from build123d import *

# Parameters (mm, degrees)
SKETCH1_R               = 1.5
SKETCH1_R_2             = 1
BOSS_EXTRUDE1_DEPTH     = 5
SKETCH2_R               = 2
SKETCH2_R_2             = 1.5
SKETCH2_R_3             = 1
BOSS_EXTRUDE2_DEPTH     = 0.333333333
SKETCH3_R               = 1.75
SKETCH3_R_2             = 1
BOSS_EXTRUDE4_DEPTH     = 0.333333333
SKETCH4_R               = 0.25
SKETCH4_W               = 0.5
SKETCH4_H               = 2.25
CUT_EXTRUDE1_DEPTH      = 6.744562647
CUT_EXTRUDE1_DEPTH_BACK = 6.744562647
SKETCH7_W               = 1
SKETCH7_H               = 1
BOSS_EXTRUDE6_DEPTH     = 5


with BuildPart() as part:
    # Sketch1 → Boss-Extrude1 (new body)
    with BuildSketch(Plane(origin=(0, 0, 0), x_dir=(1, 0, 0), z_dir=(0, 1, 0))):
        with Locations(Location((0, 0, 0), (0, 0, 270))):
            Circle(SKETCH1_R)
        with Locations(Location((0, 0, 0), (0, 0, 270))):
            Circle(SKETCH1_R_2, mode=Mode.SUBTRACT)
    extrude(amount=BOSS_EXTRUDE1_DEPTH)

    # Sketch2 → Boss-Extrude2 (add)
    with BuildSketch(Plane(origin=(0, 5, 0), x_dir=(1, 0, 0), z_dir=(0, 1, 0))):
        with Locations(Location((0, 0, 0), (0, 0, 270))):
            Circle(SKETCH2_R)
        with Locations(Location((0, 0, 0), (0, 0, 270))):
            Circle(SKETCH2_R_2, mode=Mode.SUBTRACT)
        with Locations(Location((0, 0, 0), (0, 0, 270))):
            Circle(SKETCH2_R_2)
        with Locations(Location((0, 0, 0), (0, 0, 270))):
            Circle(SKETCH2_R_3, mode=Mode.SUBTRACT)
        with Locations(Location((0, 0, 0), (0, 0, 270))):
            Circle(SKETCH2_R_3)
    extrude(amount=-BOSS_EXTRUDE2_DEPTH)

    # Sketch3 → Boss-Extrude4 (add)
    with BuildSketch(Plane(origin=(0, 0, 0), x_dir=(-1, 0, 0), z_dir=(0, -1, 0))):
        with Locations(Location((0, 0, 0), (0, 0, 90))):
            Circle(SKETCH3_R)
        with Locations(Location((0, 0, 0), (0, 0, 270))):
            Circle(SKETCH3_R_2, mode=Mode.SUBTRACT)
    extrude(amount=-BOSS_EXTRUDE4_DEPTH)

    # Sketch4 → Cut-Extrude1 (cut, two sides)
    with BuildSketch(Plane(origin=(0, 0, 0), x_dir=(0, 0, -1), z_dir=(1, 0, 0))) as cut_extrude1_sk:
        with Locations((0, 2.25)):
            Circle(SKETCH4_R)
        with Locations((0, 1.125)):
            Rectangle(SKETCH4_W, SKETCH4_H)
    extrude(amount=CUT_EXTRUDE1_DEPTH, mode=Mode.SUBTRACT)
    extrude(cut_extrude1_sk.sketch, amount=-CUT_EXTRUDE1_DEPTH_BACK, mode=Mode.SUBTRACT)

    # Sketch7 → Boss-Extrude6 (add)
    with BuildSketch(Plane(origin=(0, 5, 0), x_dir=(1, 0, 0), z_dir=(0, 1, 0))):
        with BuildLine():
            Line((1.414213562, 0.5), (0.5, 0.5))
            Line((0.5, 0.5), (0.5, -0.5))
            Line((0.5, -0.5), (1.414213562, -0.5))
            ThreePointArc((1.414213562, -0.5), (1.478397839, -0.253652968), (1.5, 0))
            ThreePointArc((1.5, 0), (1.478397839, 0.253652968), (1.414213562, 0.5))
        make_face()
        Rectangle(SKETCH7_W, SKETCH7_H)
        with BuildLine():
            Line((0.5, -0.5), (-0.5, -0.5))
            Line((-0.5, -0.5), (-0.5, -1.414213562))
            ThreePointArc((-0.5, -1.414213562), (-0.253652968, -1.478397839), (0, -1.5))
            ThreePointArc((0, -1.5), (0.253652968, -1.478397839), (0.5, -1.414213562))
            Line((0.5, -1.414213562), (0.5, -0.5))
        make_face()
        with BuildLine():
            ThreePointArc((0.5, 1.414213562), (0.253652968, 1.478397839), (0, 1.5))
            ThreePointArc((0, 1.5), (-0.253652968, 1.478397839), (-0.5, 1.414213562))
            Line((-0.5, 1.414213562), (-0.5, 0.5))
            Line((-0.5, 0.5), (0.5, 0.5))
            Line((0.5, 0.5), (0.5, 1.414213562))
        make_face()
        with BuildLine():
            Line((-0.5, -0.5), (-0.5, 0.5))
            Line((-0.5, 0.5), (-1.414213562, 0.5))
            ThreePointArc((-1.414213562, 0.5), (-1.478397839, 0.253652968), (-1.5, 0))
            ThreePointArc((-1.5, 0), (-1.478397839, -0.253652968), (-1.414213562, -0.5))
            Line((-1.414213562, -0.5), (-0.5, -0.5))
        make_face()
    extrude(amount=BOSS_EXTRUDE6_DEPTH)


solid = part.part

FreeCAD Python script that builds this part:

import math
import FreeCAD as App
import Part
import Sketcher
from FreeCAD import Vector
Q = App.Units.Quantity

doc = App.newDocument("Part")
body = doc.addObject("PartDesign::Body", "Body")

sketch1 = doc.addObject("Sketcher::SketchObject", "Sketch")
body.addObject(sketch1)
sketch1.AttachmentSupport = (doc.XZ_Plane, [""])
sketch1.MapMode = "FlatFace"
sketch1.addGeometry(Part.Circle(Vector(0, 0, 0), Vector(0, 0, 1), 1.5), False)
sketch1.addGeometry(Part.Circle(Vector(0, 0, 0), Vector(0, 0, 1), 1), False)
sketch1.addConstraint(Sketcher.Constraint("Coincident", 0, 3, -1, 1))
sketch1.addConstraint(Sketcher.Constraint("Coincident", 1, 3, -1, 1))
sketch1.addConstraint(Sketcher.Constraint("Diameter", 0, Q("3 mm")))
sketch1.addConstraint(Sketcher.Constraint("Diameter", 1, Q("2 mm")))
pad1 = doc.addObject("PartDesign::Pad", "Pad")
body.addObject(pad1)
pad1.Profile = sketch1
pad1.Length = 5
pad1.Reversed = True

sketch2 = doc.addObject("Sketcher::SketchObject", "Sketch001")
body.addObject(sketch2)
sketch2.AttachmentSupport = (doc.XZ_Plane, [""])
sketch2.MapMode = "FlatFace"
sketch2.AttachmentOffset = App.Placement(Vector(0, 0, -5), App.Rotation())
sketch2.addGeometry(Part.Circle(Vector(0, 0, 0), Vector(0, 0, 1), 2), False)
sketch2.addConstraint(Sketcher.Constraint("Coincident", 0, 3, -1, 1))
sketch2.addConstraint(Sketcher.Constraint("Diameter", 0, Q("4 mm")))
pad2 = doc.addObject("PartDesign::Pad", "Pad001")
body.addObject(pad2)
pad2.Profile = sketch2
pad2.Length = 0.333333

sketch3 = doc.addObject("Sketcher::SketchObject", "Sketch002")
body.addObject(sketch3)
sketch3.AttachmentSupport = (doc.XZ_Plane, [""])
sketch3.MapMode = "FlatFace"
sketch3.addGeometry(Part.Circle(Vector(0, 0, 0), Vector(0, 0, 1), 1.8), False)
sketch3.addGeometry(Part.Circle(Vector(0, 0, 0), Vector(0, 0, 1), 1), False)
sketch3.addConstraint(Sketcher.Constraint("Coincident", 0, 3, -1, 1))
sketch3.addConstraint(Sketcher.Constraint("Coincident", 1, 3, -1, 1))
sketch3.addConstraint(Sketcher.Constraint("Diameter", 1, Q("2 mm")))
sketch3.addConstraint(Sketcher.Constraint("Diameter", 0, Q("3.5 mm")))
pad3 = doc.addObject("PartDesign::Pad", "Pad002")
body.addObject(pad3)
pad3.Profile = sketch3
pad3.Length = 0.333333
pad3.Reversed = True

sketch4 = doc.addObject("Sketcher::SketchObject", "Sketch003")
body.addObject(sketch4)
sketch4.AttachmentSupport = (doc.YZ_Plane, [""])
sketch4.MapMode = "FlatFace"
sketch4.addGeometry(Part.ArcOfCircle(Part.Circle(Vector(2.25, 0, 0), Vector(0, 0, 1), 0.25), math.radians(-90), math.radians(90)), False)
sketch4.addGeometry(Part.LineSegment(Vector(2.25, 0.25, 0), Vector(0, 0.25, 0)), False)
sketch4.addGeometry(Part.LineSegment(Vector(0, 0.25, 0), Vector(0, -0.25, 0)), False)
sketch4.addGeometry(Part.LineSegment(Vector(0, -0.25, 0), Vector(2.25, -0.25, 0)), False)
sketch4.addConstraint(Sketcher.Constraint("Tangent", 0, 2, 1, 1))
sketch4.addConstraint(Sketcher.Constraint("Coincident", 1, 2, 2, 1))
sketch4.addConstraint(Sketcher.Constraint("Coincident", 2, 2, 3, 1))
sketch4.addConstraint(Sketcher.Constraint("Tangent", 3, 2, 0, 1))
sketch4.addConstraint(Sketcher.Constraint("Horizontal", 1))
sketch4.addConstraint(Sketcher.Constraint("Vertical", 2))
sketch4.addConstraint(Sketcher.Constraint("Horizontal", 3))
sketch4.addConstraint(Sketcher.Constraint("Symmetric", 1, 2, 2, 2, -1, 1))
sketch4.addConstraint(Sketcher.Constraint("Radius", 0, Q("0.25 mm")))
sketch4.addConstraint(Sketcher.Constraint("DistanceX", 1, 2, 1, 1, Q("2.25 mm")))
pocket1 = doc.addObject("PartDesign::Pocket", "Pocket")
body.addObject(pocket1)
pocket1.Profile = sketch4
pocket1.Type = "ThroughAll"
pocket1.Midplane = True

sketch5 = doc.addObject("Sketcher::SketchObject", "Sketch004")
body.addObject(sketch5)
sketch5.AttachmentSupport = (doc.XZ_Plane, [""])
sketch5.MapMode = "FlatFace"
sketch5.AttachmentOffset = App.Placement(Vector(0, 0, -5), App.Rotation())
sketch5.addGeometry(Part.LineSegment(Vector(1.4, -0.5, 0), Vector(0.5, -0.5, 0)), False)
sketch5.addGeometry(Part.LineSegment(Vector(0.5, -0.5, 0), Vector(0.5, -1.4, 0)), False)
sketch5.addGeometry(Part.ArcOfCircle(Part.Circle(Vector(0, 0, 0), Vector(0, 0, 1), 1.5), math.radians(-90), math.radians(-70.53)), False)
sketch5.addGeometry(Part.ArcOfCircle(Part.Circle(Vector(0, 0, 0), Vector(0, 0, 1), 1.5), math.radians(-109.47), math.radians(-90)), False)
sketch5.addGeometry(Part.LineSegment(Vector(-0.5, -1.4, 0), Vector(-0.5, -0.5, 0)), False)
sketch5.addGeometry(Part.LineSegment(Vector(-0.5, -0.5, 0), Vector(-1.4, -0.5, 0)), False)
sketch5.addGeometry(Part.ArcOfCircle(Part.Circle(Vector(0, 0, 0), Vector(0, 0, 1), 1.5), math.radians(-180), math.radians(-160.53)), False)
sketch5.addGeometry(Part.ArcOfCircle(Part.Circle(Vector(0, 0, 0), Vector(0, 0, 1), 1.5), math.radians(160.53), math.radians(180)), False)
sketch5.addGeometry(Part.LineSegment(Vector(-1.4, 0.5, 0), Vector(-0.5, 0.5, 0)), False)
sketch5.addGeometry(Part.LineSegment(Vector(-0.5, 0.5, 0), Vector(-0.5, 1.4, 0)), False)
sketch5.addGeometry(Part.ArcOfCircle(Part.Circle(Vector(0, 0, 0), Vector(0, 0, 1), 1.5), math.radians(90), math.radians(109.47)), False)
sketch5.addGeometry(Part.ArcOfCircle(Part.Circle(Vector(0, 0, 0), Vector(0, 0, 1), 1.5), math.radians(70.53), math.radians(90)), False)
sketch5.addGeometry(Part.LineSegment(Vector(0.5, 1.4, 0), Vector(0.5, 0.5, 0)), False)
sketch5.addGeometry(Part.LineSegment(Vector(0.5, 0.5, 0), Vector(1.4, 0.5, 0)), False)
sketch5.addGeometry(Part.ArcOfCircle(Part.Circle(Vector(0, 0, 0), Vector(0, 0, 1), 1.5), math.radians(0), math.radians(19.47)), False)
sketch5.addGeometry(Part.ArcOfCircle(Part.Circle(Vector(0, 0, 0), Vector(0, 0, 1), 1.5), math.radians(-19.47), math.radians(0)), False)
sketch5.addConstraint(Sketcher.Constraint("Coincident", 0, 2, 1, 1))
sketch5.addConstraint(Sketcher.Constraint("Coincident", 1, 2, 2, 2))
sketch5.addConstraint(Sketcher.Constraint("Tangent", 2, 1, 3, 2))
sketch5.addConstraint(Sketcher.Constraint("Coincident", 3, 1, 4, 1))
sketch5.addConstraint(Sketcher.Constraint("Coincident", 4, 2, 5, 1))
sketch5.addConstraint(Sketcher.Constraint("Coincident", 5, 2, 6, 2))
sketch5.addConstraint(Sketcher.Constraint("Tangent", 6, 1, 7, 2))
sketch5.addConstraint(Sketcher.Constraint("Coincident", 7, 1, 8, 1))
sketch5.addConstraint(Sketcher.Constraint("Coincident", 8, 2, 9, 1))
sketch5.addConstraint(Sketcher.Constraint("Coincident", 9, 2, 10, 2))
sketch5.addConstraint(Sketcher.Constraint("Tangent", 10, 1, 11, 2))
sketch5.addConstraint(Sketcher.Constraint("Coincident", 11, 1, 12, 1))
sketch5.addConstraint(Sketcher.Constraint("Coincident", 12, 2, 13, 1))
sketch5.addConstraint(Sketcher.Constraint("Coincident", 13, 2, 14, 2))
sketch5.addConstraint(Sketcher.Constraint("Tangent", 14, 1, 15, 2))
sketch5.addConstraint(Sketcher.Constraint("Coincident", 15, 1, 0, 1))
sketch5.addConstraint(Sketcher.Constraint("Horizontal", 0))
sketch5.addConstraint(Sketcher.Constraint("Vertical", 1))
sketch5.addConstraint(Sketcher.Constraint("Vertical", 4))
sketch5.addConstraint(Sketcher.Constraint("Horizontal", 5))
sketch5.addConstraint(Sketcher.Constraint("Horizontal", 8))
sketch5.addConstraint(Sketcher.Constraint("Vertical", 9))
sketch5.addConstraint(Sketcher.Constraint("Vertical", 12))
sketch5.addConstraint(Sketcher.Constraint("Horizontal", 13))
sketch5.addConstraint(Sketcher.Constraint("Coincident", 2, 3, -1, 1))
sketch5.addConstraint(Sketcher.Constraint("Coincident", 6, 3, -1, 1))
sketch5.addConstraint(Sketcher.Constraint("Coincident", 10, 3, -1, 1))
sketch5.addConstraint(Sketcher.Constraint("Coincident", 14, 3, -1, 1))
sketch5.addConstraint(Sketcher.Constraint("Equal", 2, 3))
sketch5.addConstraint(Sketcher.Constraint("Equal", 3, 6))
sketch5.addConstraint(Sketcher.Constraint("Equal", 6, 7))
sketch5.addConstraint(Sketcher.Constraint("Equal", 7, 10))
sketch5.addConstraint(Sketcher.Constraint("Equal", 10, 11))
sketch5.addConstraint(Sketcher.Constraint("Equal", 11, 14))
sketch5.addConstraint(Sketcher.Constraint("Equal", 14, 15))
sketch5.addConstraint(Sketcher.Constraint("Symmetric", 0, 2, 8, 2, -1, 1))
sketch5.addConstraint(Sketcher.Constraint("Symmetric", 4, 2, 12, 2, -1, 1))
sketch5.addConstraint(Sketcher.Constraint("Symmetric", 0, 2, 4, 2, -2))
sketch5.addConstraint(Sketcher.Constraint("PointOnObject", 2, 1, -2))
sketch5.addConstraint(Sketcher.Constraint("PointOnObject", 6, 1, -1))
sketch5.addConstraint(Sketcher.Constraint("PointOnObject", 10, 1, -2))
sketch5.addConstraint(Sketcher.Constraint("PointOnObject", 14, 1, -1))
sketch5.addConstraint(Sketcher.Constraint("Equal", 13, 1))
sketch5.addConstraint(Sketcher.Constraint("Radius", 2, Q("1.5 mm")))
sketch5.addConstraint(Sketcher.Constraint("DistanceY", 2, 1, 0, 2, Q("1 mm")))
pad4 = doc.addObject("PartDesign::Pad", "Pad003")
body.addObject(pad4)
pad4.Profile = sketch5
pad4.Length = 5
pad4.Reversed = True

doc.recompute()
